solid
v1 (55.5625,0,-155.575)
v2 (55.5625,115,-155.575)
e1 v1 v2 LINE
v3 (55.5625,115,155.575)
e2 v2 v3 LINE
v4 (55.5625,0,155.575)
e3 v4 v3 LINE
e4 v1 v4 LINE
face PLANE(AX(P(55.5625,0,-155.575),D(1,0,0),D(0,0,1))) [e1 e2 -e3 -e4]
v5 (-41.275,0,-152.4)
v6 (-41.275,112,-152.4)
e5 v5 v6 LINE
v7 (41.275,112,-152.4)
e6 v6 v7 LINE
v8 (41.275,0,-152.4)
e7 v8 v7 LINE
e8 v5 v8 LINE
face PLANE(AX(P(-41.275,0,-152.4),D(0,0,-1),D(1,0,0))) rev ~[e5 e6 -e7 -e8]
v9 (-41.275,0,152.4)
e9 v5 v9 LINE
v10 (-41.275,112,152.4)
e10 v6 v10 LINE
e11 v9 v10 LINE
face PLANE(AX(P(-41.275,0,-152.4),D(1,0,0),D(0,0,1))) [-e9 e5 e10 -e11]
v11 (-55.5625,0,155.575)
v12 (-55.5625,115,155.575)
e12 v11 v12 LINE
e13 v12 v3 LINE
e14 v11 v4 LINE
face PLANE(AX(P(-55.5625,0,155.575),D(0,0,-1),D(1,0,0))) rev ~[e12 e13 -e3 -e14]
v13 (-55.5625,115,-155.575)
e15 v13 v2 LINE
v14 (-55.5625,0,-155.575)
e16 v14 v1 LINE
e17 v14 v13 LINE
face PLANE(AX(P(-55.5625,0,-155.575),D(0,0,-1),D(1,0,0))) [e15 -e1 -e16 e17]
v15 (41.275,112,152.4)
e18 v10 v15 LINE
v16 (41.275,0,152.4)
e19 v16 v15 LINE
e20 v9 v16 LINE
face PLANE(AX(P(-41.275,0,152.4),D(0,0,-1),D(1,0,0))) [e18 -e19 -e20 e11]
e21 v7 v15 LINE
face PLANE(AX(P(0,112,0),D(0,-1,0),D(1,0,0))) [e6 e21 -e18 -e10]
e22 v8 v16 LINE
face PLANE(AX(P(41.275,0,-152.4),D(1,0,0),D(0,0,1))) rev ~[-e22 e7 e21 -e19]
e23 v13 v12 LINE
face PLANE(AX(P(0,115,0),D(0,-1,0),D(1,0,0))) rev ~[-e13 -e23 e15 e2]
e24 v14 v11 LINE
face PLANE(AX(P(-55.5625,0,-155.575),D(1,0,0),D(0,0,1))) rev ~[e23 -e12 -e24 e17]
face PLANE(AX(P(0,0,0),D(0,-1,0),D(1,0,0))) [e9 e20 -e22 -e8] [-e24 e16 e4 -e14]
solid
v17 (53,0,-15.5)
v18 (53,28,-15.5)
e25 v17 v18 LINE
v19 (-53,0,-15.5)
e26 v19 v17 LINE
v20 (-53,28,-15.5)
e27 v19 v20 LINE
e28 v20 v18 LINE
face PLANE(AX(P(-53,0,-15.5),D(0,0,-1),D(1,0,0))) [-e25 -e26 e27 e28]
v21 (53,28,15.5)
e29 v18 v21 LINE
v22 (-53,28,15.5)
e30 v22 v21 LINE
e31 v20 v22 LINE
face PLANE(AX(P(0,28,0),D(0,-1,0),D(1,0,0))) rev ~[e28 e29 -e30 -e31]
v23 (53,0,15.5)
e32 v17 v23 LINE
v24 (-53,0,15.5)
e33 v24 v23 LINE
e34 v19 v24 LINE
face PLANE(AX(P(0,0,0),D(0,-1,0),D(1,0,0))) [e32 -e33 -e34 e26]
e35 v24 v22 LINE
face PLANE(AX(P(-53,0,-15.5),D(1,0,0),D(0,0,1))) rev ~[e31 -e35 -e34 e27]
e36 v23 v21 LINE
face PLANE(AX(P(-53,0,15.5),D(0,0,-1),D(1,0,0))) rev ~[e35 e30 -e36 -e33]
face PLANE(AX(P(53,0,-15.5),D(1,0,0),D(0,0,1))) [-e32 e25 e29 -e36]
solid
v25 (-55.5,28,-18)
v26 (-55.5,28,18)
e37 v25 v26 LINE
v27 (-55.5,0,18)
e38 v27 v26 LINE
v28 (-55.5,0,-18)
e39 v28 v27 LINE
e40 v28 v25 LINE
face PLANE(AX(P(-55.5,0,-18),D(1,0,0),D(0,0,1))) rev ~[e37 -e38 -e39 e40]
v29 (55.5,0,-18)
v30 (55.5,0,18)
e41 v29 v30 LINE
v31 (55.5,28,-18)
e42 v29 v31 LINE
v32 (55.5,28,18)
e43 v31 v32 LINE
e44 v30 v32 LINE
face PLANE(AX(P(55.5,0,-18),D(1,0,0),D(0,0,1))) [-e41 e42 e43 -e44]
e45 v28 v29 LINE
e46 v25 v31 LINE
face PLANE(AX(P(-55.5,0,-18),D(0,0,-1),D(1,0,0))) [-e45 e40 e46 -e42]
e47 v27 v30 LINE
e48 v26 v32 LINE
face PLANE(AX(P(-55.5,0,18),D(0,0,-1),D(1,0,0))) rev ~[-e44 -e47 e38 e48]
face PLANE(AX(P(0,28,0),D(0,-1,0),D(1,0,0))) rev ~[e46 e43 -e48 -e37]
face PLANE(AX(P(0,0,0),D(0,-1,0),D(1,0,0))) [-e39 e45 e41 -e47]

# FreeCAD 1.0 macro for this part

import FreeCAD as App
import Part
import Sketcher
from FreeCAD import Vector

doc = App.newDocument("Part")
body = doc.addObject("PartDesign::Body", "Body")

# Sketch on XZ plane
sketch1 = body.newObject("Sketcher::SketchObject", "Sketch")
sketch1.AttachmentSupport = (doc.getObject("XZ_Plane"), [""])
sketch1.MapMode = "FlatFace"
sketch1.addGeometry([
    Part.LineSegment(Vector(-56, 156, 0), Vector(-56, -156, 0)),
    Part.LineSegment(Vector(-56, -156, 0), Vector(56, -156, 0)),
    Part.LineSegment(Vector(56, -156, 0), Vector(56, 156, 0)),
    Part.LineSegment(Vector(56, 156, 0), Vector(-56, 156, 0)),
], False)
sketch1.addConstraint([
    Sketcher.Constraint("Coincident", 0, 2, 1, 1),
    Sketcher.Constraint("Coincident", 1, 2, 2, 1),
    Sketcher.Constraint("Coincident", 2, 2, 3, 1),
    Sketcher.Constraint("Coincident", 3, 2, 0, 1),
    Sketcher.Constraint("Vertical", 0),
    Sketcher.Constraint("Horizontal", 1),
    Sketcher.Constraint("Vertical", 2),
    Sketcher.Constraint("Horizontal", 3),
    Sketcher.Constraint("Symmetric", 0, 2, 2, 2, -1, 1),
    Sketcher.Constraint("DistanceY", 0, 2, 0, 1, 311.15),
    Sketcher.Constraint("DistanceX", 1, 1, 1, 2, 111.125),
])
pad1 = body.newObject("PartDesign::Pad", "Pad")
pad1.Profile = sketch1
pad1.Length = 115
pad1.Reversed = True
body2 = doc.addObject("PartDesign::Body", "Body001")

# Sketch on XZ plane
sketch2 = body2.newObject("Sketcher::SketchObject", "Sketch001")
sketch2.AttachmentSupport = (doc.getObject("XZ_Plane001"), [""])
sketch2.MapMode = "FlatFace"
sketch2.addGeometry([
    Part.LineSegment(Vector(-41, 152, 0), Vector(-41, -152, 0)),
    Part.LineSegment(Vector(-41, -152, 0), Vector(41, -152, 0)),
    Part.LineSegment(Vector(41, -152, 0), Vector(41, 152, 0)),
    Part.LineSegment(Vector(41, 152, 0), Vector(-41, 152, 0)),
], False)
sketch2.addConstraint([
    Sketcher.Constraint("Coincident", 0, 2, 1, 1),
    Sketcher.Constraint("Coincident", 1, 2, 2, 1),
    Sketcher.Constraint("Coincident", 2, 2, 3, 1),
    Sketcher.Constraint("Coincident", 3, 2, 0, 1),
    Sketcher.Constraint("Vertical", 0),
    Sketcher.Constraint("Horizontal", 1),
    Sketcher.Constraint("Vertical", 2),
    Sketcher.Constraint("Horizontal", 3),
    Sketcher.Constraint("Symmetric", 0, 2, 2, 2, -1, 1),
    Sketcher.Constraint("DistanceY", 0, 2, 0, 1, 304.8),
    Sketcher.Constraint("DistanceX", 1, 1, 1, 2, 82.55),
])
pad2 = body2.newObject("PartDesign::Pad", "Pad001")
pad2.Profile = sketch2
pad2.Length = 115
pad2.Reversed = True
body3 = doc.addObject("PartDesign::Body", "Body002")

# Sketch on XZ plane
sketch3 = body3.newObject("Sketcher::SketchObject", "Sketch002")
sketch3.AttachmentSupport = (doc.getObject("XZ_Plane002"), [""])
sketch3.MapMode = "FlatFace"
sketch3.addGeometry([
    Part.LineSegment(Vector(-41, 152, 0), Vector(-41, -152, 0)),
    Part.LineSegment(Vector(-41, -152, 0), Vector(41, -152, 0)),
    Part.LineSegment(Vector(41, -152, 0), Vector(41, 152, 0)),
    Part.LineSegment(Vector(41, 152, 0), Vector(-41, 152, 0)),
], False)
sketch3.addConstraint([
    Sketcher.Constraint("Coincident", 0, 2, 1, 1),
    Sketcher.Constraint("Coincident", 1, 2, 2, 1),
    Sketcher.Constraint("Coincident", 2, 2, 3, 1),
    Sketcher.Constraint("Coincident", 3, 2, 0, 1),
    Sketcher.Constraint("Vertical", 0),
    Sketcher.Constraint("Horizontal", 1),
    Sketcher.Constraint("Vertical", 2),
    Sketcher.Constraint("Horizontal", 3),
    Sketcher.Constraint("Symmetric", 0, 2, 2, 2, -1, 1),
    Sketcher.Constraint("DistanceY", 0, 2, 0, 1, 304.8),
    Sketcher.Constraint("DistanceX", 1, 1, 1, 2, 82.55),
])
pad3 = body3.newObject("PartDesign::Pad", "Pad002")
pad3.Profile = sketch3
pad3.Length = 112
pad3.Reversed = True
doc.recompute()

body4 = doc.addObject("PartDesign::Body", "Body003")
body4.BaseFeature = body3
boolean = body.newObject("PartDesign::Boolean", "Boolean")
boolean.Type = "Cut"
boolean.addObjects([body4])
doc.recompute()

boolean2 = body2.newObject("PartDesign::Boolean", "Boolean001")
boolean2.Type = "Cut"
boolean2.addObjects([body3])
body5 = doc.addObject("PartDesign::Body", "Body004")

# Sketch on XZ plane
sketch4 = body5.newObject("Sketcher::SketchObject", "Sketch003")
sketch4.AttachmentSupport = (doc.getObject("XZ_Plane004"), [""])
sketch4.MapMode = "FlatFace"
sketch4.addGeometry([
    Part.LineSegment(Vector(-56, 18, 0), Vector(-56, -18, 0)),
    Part.LineSegment(Vector(-56, -18, 0), Vector(56, -18, 0)),
    Part.LineSegment(Vector(56, -18, 0), Vector(56, 18, 0)),
    Part.LineSegment(Vector(56, 18, 0), Vector(-56, 18, 0)),
], False)
sketch4.addConstraint([
    Sketcher.Constraint("Coincident", 0, 2, 1, 1),
    Sketcher.Constraint("Coincident", 1, 2, 2, 1),
    Sketcher.Constraint("Coincident", 2, 2, 3, 1),
    Sketcher.Constraint("Coincident", 3, 2, 0, 1),
    Sketcher.Constraint("Vertical", 0),
    Sketcher.Constraint("Horizontal", 1),
    Sketcher.Constraint("Vertical", 2),
    Sketcher.Constraint("Horizontal", 3),
    Sketcher.Constraint("Symmetric", 0, 2, 2, 2, -1, 1),
    Sketcher.Constraint("DistanceX", 1, 1, 1, 2, 111.0),
    Sketcher.Constraint("DistanceY", 0, 2, 0, 1, 36.0),
])
pad4 = body5.newObject("PartDesign::Pad", "Pad003")
pad4.Profile = sketch4
pad4.Length = 28
pad4.Reversed = True
body6 = doc.addObject("PartDesign::Body", "Body005")

# Sketch on XZ plane
sketch5 = body6.newObject("Sketcher::SketchObject", "Sketch004")
sketch5.AttachmentSupport = (doc.getObject("XZ_Plane005"), [""])
sketch5.MapMode = "FlatFace"
sketch5.addGeometry([
    Part.LineSegment(Vector(-53, 16, 0), Vector(-53, -16, 0)),
    Part.LineSegment(Vector(-53, -16, 0), Vector(53, -16, 0)),
    Part.LineSegment(Vector(53, -16, 0), Vector(53, 16, 0)),
    Part.LineSegment(Vector(53, 16, 0), Vector(-53, 16, 0)),
], False)
sketch5.addConstraint([
    Sketcher.Constraint("Coincident", 0, 2, 1, 1),
    Sketcher.Constraint("Coincident", 1, 2, 2, 1),
    Sketcher.Constraint("Coincident", 2, 2, 3, 1),
    Sketcher.Constraint("Coincident", 3, 2, 0, 1),
    Sketcher.Constraint("Vertical", 0),
    Sketcher.Constraint("Horizontal", 1),
    Sketcher.Constraint("Vertical", 2),
    Sketcher.Constraint("Horizontal", 3),
    Sketcher.Constraint("Symmetric", 0, 2, 2, 2, -1, 1),
    Sketcher.Constraint("DistanceX", 1, 1, 1, 2, 106.0),
    Sketcher.Constraint("DistanceY", 0, 2, 0, 1, 31.0),
])
pad5 = body6.newObject("PartDesign::Pad", "Pad004")
pad5.Profile = sketch5
pad5.Length = 28
pad5.Reversed = True
body2.Visibility = False

doc.recompute()
